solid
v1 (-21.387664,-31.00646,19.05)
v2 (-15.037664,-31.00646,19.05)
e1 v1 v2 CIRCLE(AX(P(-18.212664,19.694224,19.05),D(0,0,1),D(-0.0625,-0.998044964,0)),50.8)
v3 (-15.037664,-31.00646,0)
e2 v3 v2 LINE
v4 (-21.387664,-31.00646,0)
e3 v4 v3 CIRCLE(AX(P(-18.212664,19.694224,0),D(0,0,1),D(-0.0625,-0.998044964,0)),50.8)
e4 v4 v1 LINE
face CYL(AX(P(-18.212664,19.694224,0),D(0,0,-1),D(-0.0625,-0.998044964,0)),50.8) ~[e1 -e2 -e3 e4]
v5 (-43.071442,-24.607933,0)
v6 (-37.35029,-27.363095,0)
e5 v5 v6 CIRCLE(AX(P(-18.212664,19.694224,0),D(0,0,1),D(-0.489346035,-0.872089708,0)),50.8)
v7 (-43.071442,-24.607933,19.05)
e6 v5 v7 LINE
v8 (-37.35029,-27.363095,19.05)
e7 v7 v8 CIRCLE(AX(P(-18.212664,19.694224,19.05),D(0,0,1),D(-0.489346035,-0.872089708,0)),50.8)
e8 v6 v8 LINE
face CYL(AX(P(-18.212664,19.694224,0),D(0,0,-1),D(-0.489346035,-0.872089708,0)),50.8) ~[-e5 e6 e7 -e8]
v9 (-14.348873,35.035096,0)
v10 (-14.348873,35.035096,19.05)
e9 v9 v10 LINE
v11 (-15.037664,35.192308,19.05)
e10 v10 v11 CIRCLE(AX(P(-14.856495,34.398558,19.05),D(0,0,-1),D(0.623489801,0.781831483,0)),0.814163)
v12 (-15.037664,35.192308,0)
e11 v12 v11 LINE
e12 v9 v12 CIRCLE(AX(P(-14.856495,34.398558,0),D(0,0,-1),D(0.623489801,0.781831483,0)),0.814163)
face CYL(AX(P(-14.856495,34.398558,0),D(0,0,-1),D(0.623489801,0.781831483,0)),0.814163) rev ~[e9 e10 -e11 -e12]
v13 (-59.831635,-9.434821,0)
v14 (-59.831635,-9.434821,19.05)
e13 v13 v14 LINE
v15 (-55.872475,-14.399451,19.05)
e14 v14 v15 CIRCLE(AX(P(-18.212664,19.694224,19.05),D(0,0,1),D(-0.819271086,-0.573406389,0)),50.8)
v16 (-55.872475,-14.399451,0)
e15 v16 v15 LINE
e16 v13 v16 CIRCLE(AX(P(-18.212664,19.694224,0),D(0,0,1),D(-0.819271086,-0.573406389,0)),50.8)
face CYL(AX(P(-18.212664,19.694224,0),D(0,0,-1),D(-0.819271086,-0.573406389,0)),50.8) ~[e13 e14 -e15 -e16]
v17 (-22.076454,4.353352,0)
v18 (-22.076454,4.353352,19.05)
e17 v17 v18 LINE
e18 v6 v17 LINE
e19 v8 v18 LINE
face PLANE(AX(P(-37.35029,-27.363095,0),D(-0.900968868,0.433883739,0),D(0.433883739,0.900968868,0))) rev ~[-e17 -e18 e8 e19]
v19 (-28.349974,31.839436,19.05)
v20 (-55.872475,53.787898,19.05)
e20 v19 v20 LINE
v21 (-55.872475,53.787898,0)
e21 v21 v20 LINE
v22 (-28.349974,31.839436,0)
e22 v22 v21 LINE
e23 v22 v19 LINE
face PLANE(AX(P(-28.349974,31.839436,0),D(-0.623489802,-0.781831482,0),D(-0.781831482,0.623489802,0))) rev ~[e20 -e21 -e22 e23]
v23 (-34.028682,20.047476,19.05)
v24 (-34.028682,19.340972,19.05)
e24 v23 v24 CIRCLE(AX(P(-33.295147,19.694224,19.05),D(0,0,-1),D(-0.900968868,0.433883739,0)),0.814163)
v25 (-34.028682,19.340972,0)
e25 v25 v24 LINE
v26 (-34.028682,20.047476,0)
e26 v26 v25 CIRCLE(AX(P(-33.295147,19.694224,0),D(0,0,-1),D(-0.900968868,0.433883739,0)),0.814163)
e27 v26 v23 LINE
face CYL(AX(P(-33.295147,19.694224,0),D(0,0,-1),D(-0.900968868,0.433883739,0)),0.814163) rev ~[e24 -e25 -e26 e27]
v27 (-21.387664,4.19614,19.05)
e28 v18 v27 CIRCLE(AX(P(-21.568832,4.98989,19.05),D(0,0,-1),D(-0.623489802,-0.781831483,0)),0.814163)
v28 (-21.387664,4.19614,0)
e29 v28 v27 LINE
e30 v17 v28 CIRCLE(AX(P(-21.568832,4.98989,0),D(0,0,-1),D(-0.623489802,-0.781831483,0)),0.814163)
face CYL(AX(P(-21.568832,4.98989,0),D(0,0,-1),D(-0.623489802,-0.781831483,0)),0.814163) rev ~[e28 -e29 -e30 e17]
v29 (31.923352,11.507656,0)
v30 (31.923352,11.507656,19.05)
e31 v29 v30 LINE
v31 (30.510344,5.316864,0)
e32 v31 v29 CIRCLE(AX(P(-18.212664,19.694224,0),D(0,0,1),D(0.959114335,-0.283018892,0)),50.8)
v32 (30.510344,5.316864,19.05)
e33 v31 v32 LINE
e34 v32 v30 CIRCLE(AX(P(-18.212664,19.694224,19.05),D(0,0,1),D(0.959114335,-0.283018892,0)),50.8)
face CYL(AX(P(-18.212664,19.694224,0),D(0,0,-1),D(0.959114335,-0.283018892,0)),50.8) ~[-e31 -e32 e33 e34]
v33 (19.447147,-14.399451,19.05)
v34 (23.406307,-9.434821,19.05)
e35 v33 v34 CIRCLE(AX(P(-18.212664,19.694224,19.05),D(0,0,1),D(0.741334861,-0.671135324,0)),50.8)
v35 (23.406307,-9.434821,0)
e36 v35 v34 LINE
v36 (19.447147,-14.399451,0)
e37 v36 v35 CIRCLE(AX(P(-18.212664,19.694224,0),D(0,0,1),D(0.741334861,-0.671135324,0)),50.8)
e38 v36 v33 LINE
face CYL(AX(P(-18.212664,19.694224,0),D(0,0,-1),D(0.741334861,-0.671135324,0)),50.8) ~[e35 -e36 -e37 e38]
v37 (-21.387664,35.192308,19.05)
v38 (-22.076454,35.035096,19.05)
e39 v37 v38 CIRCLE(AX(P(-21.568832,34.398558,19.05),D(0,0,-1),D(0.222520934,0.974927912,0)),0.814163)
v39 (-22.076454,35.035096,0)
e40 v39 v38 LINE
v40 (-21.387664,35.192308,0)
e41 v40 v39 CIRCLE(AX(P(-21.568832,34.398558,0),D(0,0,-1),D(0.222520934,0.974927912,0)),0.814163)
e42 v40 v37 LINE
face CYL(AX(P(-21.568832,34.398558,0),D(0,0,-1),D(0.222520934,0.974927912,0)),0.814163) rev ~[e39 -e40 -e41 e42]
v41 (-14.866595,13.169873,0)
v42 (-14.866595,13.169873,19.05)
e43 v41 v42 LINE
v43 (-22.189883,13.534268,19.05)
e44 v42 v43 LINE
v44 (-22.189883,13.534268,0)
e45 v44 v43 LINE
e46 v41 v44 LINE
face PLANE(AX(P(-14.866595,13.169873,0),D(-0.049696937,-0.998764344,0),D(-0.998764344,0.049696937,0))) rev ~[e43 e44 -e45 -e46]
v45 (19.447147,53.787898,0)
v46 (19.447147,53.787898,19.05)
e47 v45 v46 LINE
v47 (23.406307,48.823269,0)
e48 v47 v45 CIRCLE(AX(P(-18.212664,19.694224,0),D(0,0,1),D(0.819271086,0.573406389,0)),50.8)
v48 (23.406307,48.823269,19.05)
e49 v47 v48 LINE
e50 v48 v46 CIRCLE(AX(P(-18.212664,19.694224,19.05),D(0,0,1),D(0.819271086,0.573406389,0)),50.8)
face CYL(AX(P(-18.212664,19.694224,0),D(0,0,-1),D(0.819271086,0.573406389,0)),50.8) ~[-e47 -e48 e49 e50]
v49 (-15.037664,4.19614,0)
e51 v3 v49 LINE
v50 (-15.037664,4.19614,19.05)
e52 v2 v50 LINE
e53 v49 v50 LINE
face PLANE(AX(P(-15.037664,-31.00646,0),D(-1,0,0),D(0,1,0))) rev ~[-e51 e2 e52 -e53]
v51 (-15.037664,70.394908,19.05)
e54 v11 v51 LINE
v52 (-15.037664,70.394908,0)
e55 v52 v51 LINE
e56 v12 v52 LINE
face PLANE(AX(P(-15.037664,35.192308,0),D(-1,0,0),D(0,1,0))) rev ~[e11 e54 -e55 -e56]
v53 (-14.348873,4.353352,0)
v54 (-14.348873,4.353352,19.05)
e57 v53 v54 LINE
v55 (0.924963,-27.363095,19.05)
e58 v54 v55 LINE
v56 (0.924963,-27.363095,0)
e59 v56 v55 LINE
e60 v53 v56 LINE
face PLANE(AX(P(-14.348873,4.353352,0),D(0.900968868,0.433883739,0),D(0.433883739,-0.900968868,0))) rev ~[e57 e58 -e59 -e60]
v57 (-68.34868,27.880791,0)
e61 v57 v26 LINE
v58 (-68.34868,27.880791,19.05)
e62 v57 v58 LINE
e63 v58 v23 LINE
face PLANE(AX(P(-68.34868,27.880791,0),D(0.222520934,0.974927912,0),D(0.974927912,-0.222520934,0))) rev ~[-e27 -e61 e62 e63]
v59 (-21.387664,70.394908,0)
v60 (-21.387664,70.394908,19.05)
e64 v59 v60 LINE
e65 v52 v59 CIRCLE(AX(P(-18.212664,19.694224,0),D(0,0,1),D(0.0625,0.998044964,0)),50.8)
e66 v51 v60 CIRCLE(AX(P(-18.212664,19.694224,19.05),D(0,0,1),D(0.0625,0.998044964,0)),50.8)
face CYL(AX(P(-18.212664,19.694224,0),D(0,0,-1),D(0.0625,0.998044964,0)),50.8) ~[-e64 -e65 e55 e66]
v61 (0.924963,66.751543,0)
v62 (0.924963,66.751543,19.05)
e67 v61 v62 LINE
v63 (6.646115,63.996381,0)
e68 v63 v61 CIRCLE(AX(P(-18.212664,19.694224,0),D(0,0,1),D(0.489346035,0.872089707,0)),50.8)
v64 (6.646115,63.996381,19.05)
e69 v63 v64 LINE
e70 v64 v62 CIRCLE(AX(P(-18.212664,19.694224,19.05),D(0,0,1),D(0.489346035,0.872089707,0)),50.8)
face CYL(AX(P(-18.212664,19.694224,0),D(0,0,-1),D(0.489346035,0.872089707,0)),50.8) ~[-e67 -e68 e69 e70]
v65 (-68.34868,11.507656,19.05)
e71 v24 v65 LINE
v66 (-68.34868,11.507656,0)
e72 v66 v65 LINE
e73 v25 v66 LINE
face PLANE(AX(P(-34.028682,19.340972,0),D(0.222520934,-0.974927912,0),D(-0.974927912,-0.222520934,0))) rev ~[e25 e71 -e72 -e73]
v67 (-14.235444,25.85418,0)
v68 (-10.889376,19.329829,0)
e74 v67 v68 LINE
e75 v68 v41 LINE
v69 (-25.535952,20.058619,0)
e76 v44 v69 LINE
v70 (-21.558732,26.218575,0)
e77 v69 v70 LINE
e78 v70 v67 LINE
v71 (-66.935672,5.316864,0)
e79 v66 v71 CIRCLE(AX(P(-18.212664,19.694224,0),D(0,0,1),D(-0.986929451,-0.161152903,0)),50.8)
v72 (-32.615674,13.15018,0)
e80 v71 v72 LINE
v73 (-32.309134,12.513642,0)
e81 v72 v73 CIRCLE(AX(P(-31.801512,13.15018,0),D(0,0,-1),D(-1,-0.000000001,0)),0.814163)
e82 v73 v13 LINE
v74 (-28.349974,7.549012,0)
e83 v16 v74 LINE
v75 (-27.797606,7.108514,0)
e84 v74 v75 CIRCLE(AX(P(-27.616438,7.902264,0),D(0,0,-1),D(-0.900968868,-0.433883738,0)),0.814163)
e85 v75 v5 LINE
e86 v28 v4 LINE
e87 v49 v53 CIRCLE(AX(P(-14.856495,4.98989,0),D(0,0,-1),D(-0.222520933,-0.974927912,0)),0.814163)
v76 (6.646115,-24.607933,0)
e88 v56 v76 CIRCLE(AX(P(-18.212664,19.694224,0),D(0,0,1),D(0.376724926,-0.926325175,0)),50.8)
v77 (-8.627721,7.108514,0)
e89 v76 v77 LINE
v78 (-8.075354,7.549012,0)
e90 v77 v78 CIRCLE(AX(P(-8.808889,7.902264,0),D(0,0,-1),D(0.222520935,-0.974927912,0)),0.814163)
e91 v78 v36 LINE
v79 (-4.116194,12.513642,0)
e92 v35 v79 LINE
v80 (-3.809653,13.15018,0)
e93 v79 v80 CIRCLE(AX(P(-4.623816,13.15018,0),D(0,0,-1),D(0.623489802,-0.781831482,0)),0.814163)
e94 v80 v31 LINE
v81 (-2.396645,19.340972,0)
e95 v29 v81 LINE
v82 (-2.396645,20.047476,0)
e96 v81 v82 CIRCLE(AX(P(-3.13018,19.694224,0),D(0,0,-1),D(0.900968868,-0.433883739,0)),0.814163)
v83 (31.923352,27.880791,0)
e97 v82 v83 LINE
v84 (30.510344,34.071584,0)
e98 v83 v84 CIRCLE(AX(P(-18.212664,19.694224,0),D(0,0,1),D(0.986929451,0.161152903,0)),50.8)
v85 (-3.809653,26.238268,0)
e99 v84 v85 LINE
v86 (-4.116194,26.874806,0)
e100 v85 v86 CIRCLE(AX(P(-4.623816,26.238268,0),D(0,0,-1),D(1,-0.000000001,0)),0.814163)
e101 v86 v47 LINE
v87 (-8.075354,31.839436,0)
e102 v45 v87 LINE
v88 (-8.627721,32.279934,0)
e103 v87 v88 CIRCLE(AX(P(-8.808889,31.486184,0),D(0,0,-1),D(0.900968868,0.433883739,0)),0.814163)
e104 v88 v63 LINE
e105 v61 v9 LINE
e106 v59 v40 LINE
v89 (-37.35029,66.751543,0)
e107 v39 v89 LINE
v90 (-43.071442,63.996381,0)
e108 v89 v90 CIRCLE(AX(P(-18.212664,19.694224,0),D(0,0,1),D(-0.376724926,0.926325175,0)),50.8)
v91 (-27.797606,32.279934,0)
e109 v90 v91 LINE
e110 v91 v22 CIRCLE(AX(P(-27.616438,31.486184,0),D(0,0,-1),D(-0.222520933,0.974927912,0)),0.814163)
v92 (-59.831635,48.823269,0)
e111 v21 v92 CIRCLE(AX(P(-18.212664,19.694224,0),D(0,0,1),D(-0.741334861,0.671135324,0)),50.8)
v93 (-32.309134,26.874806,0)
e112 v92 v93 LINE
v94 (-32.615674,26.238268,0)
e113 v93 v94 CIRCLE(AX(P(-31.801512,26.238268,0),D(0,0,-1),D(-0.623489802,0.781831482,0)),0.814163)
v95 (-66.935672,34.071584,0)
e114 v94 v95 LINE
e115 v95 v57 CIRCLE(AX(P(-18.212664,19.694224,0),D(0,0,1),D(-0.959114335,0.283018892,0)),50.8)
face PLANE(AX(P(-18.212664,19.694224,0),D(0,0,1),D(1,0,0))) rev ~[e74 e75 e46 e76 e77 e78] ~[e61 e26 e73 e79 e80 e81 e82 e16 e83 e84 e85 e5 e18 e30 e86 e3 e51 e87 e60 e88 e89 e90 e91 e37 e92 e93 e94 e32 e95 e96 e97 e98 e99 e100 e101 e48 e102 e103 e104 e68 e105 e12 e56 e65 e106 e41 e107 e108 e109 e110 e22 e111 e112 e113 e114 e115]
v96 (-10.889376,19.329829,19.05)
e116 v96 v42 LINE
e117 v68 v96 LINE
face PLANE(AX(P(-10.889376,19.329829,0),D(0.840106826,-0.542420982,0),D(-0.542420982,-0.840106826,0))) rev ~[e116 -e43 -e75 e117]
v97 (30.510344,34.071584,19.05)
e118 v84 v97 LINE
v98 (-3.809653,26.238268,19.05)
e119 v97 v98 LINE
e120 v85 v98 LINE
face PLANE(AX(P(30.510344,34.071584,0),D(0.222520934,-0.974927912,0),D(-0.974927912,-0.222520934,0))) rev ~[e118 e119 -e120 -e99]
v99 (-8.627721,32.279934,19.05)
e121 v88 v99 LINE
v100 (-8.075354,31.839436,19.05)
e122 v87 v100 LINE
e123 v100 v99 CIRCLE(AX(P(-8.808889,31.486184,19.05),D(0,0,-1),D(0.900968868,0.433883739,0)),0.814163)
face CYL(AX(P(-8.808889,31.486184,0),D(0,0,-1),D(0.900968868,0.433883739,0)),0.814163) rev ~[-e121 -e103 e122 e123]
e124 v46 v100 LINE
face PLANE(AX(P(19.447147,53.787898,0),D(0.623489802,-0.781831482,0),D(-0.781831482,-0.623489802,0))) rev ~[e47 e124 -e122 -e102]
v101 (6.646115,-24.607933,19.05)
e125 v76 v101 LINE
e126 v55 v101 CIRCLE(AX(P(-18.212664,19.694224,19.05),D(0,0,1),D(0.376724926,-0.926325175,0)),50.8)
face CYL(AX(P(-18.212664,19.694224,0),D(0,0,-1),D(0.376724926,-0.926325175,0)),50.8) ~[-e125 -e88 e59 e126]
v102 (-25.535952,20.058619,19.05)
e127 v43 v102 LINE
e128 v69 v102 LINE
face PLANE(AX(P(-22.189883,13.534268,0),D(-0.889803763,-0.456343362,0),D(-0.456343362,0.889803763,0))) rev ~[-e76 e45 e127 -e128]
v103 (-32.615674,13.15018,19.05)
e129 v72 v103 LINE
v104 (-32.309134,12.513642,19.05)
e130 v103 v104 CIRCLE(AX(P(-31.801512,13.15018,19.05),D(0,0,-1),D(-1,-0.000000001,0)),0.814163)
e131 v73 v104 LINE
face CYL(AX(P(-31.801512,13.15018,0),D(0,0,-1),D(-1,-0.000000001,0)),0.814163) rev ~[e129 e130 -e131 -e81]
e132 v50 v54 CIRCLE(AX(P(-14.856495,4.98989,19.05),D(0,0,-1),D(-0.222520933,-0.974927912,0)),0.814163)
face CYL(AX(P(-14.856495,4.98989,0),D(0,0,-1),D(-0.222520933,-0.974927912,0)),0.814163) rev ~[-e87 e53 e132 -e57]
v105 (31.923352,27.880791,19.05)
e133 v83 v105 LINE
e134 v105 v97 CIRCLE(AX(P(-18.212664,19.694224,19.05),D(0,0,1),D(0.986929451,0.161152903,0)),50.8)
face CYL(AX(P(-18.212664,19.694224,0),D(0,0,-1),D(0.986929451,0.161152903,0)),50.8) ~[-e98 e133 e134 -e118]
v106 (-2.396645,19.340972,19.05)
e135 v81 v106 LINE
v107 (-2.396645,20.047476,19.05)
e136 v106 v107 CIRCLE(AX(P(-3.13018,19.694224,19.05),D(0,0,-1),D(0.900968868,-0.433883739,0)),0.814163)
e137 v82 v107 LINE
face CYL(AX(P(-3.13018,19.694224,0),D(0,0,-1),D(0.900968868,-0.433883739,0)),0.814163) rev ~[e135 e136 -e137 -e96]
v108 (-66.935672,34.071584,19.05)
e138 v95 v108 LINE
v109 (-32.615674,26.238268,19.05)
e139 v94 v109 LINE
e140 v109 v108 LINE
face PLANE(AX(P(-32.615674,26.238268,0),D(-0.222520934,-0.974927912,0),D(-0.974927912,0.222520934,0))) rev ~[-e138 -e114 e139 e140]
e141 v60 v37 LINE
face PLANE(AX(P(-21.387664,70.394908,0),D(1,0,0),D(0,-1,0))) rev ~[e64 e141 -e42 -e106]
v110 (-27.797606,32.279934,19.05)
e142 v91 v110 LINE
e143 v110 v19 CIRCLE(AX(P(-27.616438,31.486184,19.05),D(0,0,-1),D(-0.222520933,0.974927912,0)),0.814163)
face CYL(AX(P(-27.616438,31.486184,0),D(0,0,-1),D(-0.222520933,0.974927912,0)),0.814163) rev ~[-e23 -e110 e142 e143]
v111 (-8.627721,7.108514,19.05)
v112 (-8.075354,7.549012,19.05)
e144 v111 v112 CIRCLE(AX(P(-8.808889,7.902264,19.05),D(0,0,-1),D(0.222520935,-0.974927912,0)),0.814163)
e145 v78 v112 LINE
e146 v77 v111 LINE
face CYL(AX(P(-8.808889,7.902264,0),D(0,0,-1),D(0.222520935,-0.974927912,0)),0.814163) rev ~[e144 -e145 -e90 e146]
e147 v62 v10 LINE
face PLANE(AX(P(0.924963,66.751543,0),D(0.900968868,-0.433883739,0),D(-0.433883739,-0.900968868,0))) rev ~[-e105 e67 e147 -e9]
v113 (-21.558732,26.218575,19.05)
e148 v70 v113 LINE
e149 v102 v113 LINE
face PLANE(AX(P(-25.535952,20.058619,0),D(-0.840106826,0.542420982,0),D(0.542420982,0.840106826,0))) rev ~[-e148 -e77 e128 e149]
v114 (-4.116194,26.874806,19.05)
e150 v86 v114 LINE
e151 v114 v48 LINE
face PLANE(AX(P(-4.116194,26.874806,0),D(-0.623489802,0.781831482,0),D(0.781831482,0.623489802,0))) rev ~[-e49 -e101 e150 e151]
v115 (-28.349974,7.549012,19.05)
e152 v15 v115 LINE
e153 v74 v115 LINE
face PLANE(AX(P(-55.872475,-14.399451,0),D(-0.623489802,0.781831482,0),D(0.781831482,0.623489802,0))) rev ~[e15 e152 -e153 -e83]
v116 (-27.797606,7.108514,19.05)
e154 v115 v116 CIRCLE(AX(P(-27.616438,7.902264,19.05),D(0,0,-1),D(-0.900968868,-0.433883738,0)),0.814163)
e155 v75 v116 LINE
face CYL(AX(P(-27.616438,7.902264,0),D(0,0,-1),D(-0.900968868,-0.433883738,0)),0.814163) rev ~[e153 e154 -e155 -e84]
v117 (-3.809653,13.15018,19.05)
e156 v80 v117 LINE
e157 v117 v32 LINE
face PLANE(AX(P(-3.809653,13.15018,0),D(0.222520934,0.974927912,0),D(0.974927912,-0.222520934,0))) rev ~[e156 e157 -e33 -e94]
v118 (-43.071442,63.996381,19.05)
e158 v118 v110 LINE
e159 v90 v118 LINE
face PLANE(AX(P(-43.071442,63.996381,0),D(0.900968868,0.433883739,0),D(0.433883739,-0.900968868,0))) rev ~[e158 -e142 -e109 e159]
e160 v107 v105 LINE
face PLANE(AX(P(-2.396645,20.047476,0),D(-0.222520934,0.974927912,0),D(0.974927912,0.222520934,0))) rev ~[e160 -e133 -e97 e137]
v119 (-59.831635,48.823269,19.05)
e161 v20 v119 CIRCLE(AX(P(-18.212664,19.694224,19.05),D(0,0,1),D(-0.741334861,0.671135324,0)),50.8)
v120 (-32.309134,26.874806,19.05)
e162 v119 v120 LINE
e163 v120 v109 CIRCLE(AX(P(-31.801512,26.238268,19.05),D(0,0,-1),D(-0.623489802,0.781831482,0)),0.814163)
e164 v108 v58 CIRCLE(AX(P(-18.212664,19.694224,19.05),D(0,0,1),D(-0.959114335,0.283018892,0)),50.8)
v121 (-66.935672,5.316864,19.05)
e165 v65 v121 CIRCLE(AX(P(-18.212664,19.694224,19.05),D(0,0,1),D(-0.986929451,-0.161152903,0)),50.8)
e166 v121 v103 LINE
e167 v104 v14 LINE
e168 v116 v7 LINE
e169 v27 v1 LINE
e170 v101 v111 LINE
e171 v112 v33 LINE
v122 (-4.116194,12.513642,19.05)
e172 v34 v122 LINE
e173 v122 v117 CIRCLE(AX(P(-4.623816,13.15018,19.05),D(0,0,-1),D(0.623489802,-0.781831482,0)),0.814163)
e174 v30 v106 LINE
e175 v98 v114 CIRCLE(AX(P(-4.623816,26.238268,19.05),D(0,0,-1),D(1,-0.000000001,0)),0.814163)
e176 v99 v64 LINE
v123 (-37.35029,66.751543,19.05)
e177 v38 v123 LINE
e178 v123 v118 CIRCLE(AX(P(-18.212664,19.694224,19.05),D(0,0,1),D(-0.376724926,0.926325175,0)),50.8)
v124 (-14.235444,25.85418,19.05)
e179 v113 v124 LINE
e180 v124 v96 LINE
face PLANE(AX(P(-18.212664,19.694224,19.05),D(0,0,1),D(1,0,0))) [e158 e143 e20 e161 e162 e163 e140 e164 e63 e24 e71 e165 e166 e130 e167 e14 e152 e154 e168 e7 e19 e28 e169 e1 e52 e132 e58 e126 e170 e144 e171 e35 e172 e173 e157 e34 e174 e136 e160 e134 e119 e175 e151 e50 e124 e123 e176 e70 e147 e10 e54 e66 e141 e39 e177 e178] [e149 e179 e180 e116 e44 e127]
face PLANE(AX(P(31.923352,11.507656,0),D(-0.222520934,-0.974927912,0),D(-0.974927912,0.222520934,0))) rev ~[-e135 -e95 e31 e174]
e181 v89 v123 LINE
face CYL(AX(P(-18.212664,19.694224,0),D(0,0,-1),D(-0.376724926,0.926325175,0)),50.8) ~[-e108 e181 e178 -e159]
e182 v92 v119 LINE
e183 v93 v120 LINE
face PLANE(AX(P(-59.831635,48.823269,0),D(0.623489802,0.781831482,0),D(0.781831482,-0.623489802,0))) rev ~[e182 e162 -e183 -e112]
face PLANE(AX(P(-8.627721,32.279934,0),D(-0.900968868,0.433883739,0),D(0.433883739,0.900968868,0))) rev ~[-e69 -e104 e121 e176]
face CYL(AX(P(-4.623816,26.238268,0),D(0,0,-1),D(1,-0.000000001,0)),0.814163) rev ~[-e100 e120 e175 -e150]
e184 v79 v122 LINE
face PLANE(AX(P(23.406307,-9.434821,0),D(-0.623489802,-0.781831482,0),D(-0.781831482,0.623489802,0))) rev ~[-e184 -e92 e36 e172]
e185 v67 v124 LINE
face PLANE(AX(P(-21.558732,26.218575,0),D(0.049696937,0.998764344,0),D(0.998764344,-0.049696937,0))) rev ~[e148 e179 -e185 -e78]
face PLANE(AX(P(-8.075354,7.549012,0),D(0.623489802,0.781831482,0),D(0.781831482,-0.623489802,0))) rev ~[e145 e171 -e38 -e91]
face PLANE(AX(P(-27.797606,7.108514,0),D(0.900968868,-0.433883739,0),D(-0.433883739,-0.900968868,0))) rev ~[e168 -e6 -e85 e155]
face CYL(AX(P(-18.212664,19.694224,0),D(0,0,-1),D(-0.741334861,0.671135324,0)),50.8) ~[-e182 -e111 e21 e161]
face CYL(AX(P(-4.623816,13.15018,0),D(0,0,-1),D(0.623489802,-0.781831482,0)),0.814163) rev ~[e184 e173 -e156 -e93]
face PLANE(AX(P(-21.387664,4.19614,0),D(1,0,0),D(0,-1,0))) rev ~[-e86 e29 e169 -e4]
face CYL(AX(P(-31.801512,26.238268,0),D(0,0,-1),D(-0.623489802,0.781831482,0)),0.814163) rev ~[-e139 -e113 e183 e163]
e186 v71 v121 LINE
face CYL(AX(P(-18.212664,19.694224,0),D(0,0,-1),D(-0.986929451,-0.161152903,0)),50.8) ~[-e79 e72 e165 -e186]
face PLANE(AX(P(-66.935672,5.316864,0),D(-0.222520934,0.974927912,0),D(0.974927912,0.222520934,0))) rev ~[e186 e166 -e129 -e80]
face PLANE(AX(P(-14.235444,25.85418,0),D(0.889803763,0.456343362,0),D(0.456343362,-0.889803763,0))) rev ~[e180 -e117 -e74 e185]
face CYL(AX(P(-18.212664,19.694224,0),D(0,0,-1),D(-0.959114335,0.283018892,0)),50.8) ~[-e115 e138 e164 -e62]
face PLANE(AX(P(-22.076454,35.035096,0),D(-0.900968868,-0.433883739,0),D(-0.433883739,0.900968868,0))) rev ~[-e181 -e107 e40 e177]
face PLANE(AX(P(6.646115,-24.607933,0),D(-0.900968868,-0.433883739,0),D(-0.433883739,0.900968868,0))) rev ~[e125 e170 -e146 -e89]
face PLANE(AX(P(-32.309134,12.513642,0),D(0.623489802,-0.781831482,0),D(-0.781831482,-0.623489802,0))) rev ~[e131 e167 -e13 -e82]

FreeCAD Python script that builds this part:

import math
import FreeCAD as App
import Part
import Sketcher
Q = App.Units.Quantity

doc = App.newDocument("Part")
body = doc.addObject("PartDesign::Body", "Body")

# Sketch on XY plane
sketch1 = body.newObject("Sketcher::SketchObject", "Sketch")
sketch1.AttachmentSupport = (doc.getObject("XY_Plane"), [""])
sketch1.MapMode = "FlatFace"
sketch1.addGeometry(Part.LineSegment(App.Vector(-68.34868, 27.880791, 0), App.Vector(-34.028682, 20.047476, 0)), False)
sketch1.addGeometry(Part.ArcOfCircle(Part.Circle(App.Vector(-33.295147, 19.694224, 0), App.Vector(0, 0, 1), 0.814163), math.radians(-154.285714), math.radians(154.285714)), False)
sketch1.addGeometry(Part.LineSegment(App.Vector(-34.028682, 19.340972, 0), App.Vector(-68.34868, 11.507656, 0)), False)
sketch1.addGeometry(Part.ArcOfCircle(Part.Circle(App.Vector(-18.212664, 19.694224, 0), App.Vector(0, 0, 1), 50.8), math.radians(-170.726179), math.radians(-163.559535)), False)
sketch1.addGeometry(Part.LineSegment(App.Vector(-66.935672, 5.316864, 0), App.Vector(-32.615674, 13.15018, 0)), False)
sketch1.addGeometry(Part.ArcOfCircle(Part.Circle(App.Vector(-31.801512, 13.15018, 0), App.Vector(0, 0, 1), 0.814163), math.radians(-128.571429), math.radians(180)), False)
sketch1.addGeometry(Part.LineSegment(App.Vector(-32.309134, 12.513642, 0), App.Vector(-59.831635, -9.434821, 0)), False)
sketch1.addGeometry(Part.ArcOfCircle(Part.Circle(App.Vector(-18.212664, 19.694224, 0), App.Vector(0, 0, 1), 50.8), math.radians(-145.011893), math.radians(-137.84525)), False)
sketch1.addGeometry(Part.LineSegment(App.Vector(-55.872475, -14.399451, 0), App.Vector(-28.349974, 7.549012, 0)), False)
sketch1.addGeometry(Part.ArcOfCircle(Part.Circle(App.Vector(-27.616438, 7.902264, 0), App.Vector(0, 0, 1), 0.814163), math.radians(-102.857143), math.radians(205.714286)), False)
sketch1.addGeometry(Part.LineSegment(App.Vector(-27.797606, 7.108514, 0), App.Vector(-43.071442, -24.607933, 0)), False)
sketch1.addGeometry(Part.ArcOfCircle(Part.Circle(App.Vector(-18.212664, 19.694224, 0), App.Vector(0, 0, 1), 50.8), math.radians(-119.297607), math.radians(-112.130964)), False)
sketch1.addGeometry(Part.LineSegment(App.Vector(-37.35029, -27.363095, 0), App.Vector(-22.076454, 4.353352, 0)), False)
sketch1.addGeometry(Part.ArcOfCircle(Part.Circle(App.Vector(-21.568832, 4.98989, 0), App.Vector(0, 0, 1), 0.814163), math.radians(-77.142857), math.radians(231.428571)), False)
sketch1.addGeometry(Part.LineSegment(App.Vector(-21.387664, 4.19614, 0), App.Vector(-21.387664, -31.00646, 0)), False)
sketch1.addGeometry(Part.ArcOfCircle(Part.Circle(App.Vector(-18.212664, 19.694224, 0), App.Vector(0, 0, 1), 50.8), math.radians(-93.583322), math.radians(-86.416678)), False)
sketch1.addGeometry(Part.LineSegment(App.Vector(-15.037664, -31.00646, 0), App.Vector(-15.037664, 4.19614, 0)), False)
sketch1.addGeometry(Part.ArcOfCircle(Part.Circle(App.Vector(-14.856495, 4.98989, 0), App.Vector(0, 0, 1), 0.814163), math.radians(-51.428571), math.radians(257.142857)), False)
sketch1.addGeometry(Part.LineSegment(App.Vector(-14.348873, 4.353352, 0), App.Vector(0.924963, -27.363095, 0)), False)
sketch1.addGeometry(Part.ArcOfCircle(Part.Circle(App.Vector(-18.212664, 19.694224, 0), App.Vector(0, 0, 1), 50.8), math.radians(-67.869036), math.radians(-60.702393)), False)
sketch1.addGeometry(Part.LineSegment(App.Vector(6.646115, -24.607933, 0), App.Vector(-8.627721, 7.108514, 0)), False)
sketch1.addGeometry(Part.ArcOfCircle(Part.Circle(App.Vector(-8.808889, 7.902264, 0), App.Vector(0, 0, 1), 0.814163), math.radians(-25.714286), math.radians(282.857143)), False)
sketch1.addGeometry(Part.LineSegment(App.Vector(-8.075354, 7.549012, 0), App.Vector(19.447147, -14.399451, 0)), False)
sketch1.addGeometry(Part.ArcOfCircle(Part.Circle(App.Vector(-18.212664, 19.694224, 0), App.Vector(0, 0, 1), 50.8), math.radians(-42.15475), math.radians(-34.988107)), False)
sketch1.addGeometry(Part.LineSegment(App.Vector(23.406307, -9.434821, 0), App.Vector(-4.116194, 12.513642, 0)), False)
sketch1.addGeometry(Part.ArcOfCircle(Part.Circle(App.Vector(-4.623816, 13.15018, 0), App.Vector(0, 0, 1), 0.814163), math.radians(0), math.radians(308.571429)), False)
sketch1.addGeometry(Part.LineSegment(App.Vector(-3.809653, 13.15018, 0), App.Vector(30.510344, 5.316864, 0)), False)
sketch1.addGeometry(Part.ArcOfCircle(Part.Circle(App.Vector(-18.212664, 19.694224, 0), App.Vector(0, 0, 1), 50.8), math.radians(-16.440465), math.radians(-9.273821)), False)
sketch1.addGeometry(Part.LineSegment(App.Vector(31.923352, 11.507656, 0), App.Vector(-2.396645, 19.340972, 0)), False)
sketch1.addGeometry(Part.ArcOfCircle(Part.Circle(App.Vector(-3.13018, 19.694224, 0), App.Vector(0, 0, 1), 0.814163), math.radians(25.714286), math.radians(334.285714)), False)
sketch1.addGeometry(Part.LineSegment(App.Vector(-2.396645, 20.047476, 0), App.Vector(31.923352, 27.880791, 0)), False)
sketch1.addGeometry(Part.ArcOfCircle(Part.Circle(App.Vector(-18.212664, 19.694224, 0), App.Vector(0, 0, 1), 50.8), math.radians(9.273821), math.radians(16.440465)), False)
sketch1.addGeometry(Part.LineSegment(App.Vector(30.510344, 34.071584, 0), App.Vector(-3.809653, 26.238268, 0)), False)
sketch1.addGeometry(Part.ArcOfCircle(Part.Circle(App.Vector(-4.623816, 26.238268, 0), App.Vector(0, 0, 1), 0.814163), math.radians(51.428571), math.radians(360)), False)
sketch1.addGeometry(Part.LineSegment(App.Vector(-4.116194, 26.874806, 0), App.Vector(23.406307, 48.823269, 0)), False)
sketch1.addGeometry(Part.ArcOfCircle(Part.Circle(App.Vector(-18.212664, 19.694224, 0), App.Vector(0, 0, 1), 50.8), math.radians(34.988107), math.radians(42.15475)), False)
sketch1.addGeometry(Part.LineSegment(App.Vector(19.447147, 53.787898, 0), App.Vector(-8.075354, 31.839436, 0)), False)
sketch1.addGeometry(Part.ArcOfCircle(Part.Circle(App.Vector(-8.808889, 31.486184, 0), App.Vector(0, 0, 1), 0.814163), math.radians(77.142857), math.radians(385.714286)), False)
sketch1.addGeometry(Part.LineSegment(App.Vector(-8.627721, 32.279934, 0), App.Vector(6.646115, 63.996381, 0)), False)
sketch1.addGeometry(Part.ArcOfCircle(Part.Circle(App.Vector(-18.212664, 19.694224, 0), App.Vector(0, 0, 1), 50.8), math.radians(60.702393), math.radians(67.869036)), False)
sketch1.addGeometry(Part.LineSegment(App.Vector(0.924963, 66.751543, 0), App.Vector(-14.348873, 35.035096, 0)), False)
sketch1.addGeometry(Part.ArcOfCircle(Part.Circle(App.Vector(-14.856495, 34.398558, 0), App.Vector(0, 0, 1), 0.814163), math.radians(102.857143), math.radians(411.428571)), False)
sketch1.addGeometry(Part.LineSegment(App.Vector(-15.037664, 35.192308, 0), App.Vector(-15.037664, 70.394908, 0)), False)
sketch1.addGeometry(Part.ArcOfCircle(Part.Circle(App.Vector(-18.212664, 19.694224, 0), App.Vector(0, 0, 1), 50.8), math.radians(86.416678), math.radians(93.583322)), False)
sketch1.addGeometry(Part.LineSegment(App.Vector(-21.387664, 70.394908, 0), App.Vector(-21.387664, 35.192308, 0)), False)
sketch1.addGeometry(Part.ArcOfCircle(Part.Circle(App.Vector(-21.568832, 34.398558, 0), App.Vector(0, 0, 1), 0.814163), math.radians(128.571429), math.radians(437.142857)), False)
sketch1.addGeometry(Part.LineSegment(App.Vector(-22.076454, 35.035096, 0), App.Vector(-37.35029, 66.751543, 0)), False)
sketch1.addGeometry(Part.ArcOfCircle(Part.Circle(App.Vector(-18.212664, 19.694224, 0), App.Vector(0, 0, 1), 50.8), math.radians(112.130964), math.radians(119.297607)), False)
sketch1.addGeometry(Part.LineSegment(App.Vector(-43.071442, 63.996381, 0), App.Vector(-27.797606, 32.279934, 0)), False)
sketch1.addGeometry(Part.ArcOfCircle(Part.Circle(App.Vector(-27.616438, 31.486184, 0), App.Vector(0, 0, 1), 0.814163), math.radians(154.285714), math.radians(462.857143)), False)
sketch1.addGeometry(Part.LineSegment(App.Vector(-28.349974, 31.839436, 0), App.Vector(-55.872475, 53.787898, 0)), False)
sketch1.addGeometry(Part.ArcOfCircle(Part.Circle(App.Vector(-18.212664, 19.694224, 0), App.Vector(0, 0, 1), 50.8), math.radians(137.84525), math.radians(145.011893)), False)
sketch1.addGeometry(Part.LineSegment(App.Vector(-59.831635, 48.823269, 0), App.Vector(-32.309134, 26.874806, 0)), False)
sketch1.addGeometry(Part.ArcOfCircle(Part.Circle(App.Vector(-31.801512, 26.238268, 0), App.Vector(0, 0, 1), 0.814163), math.radians(180), math.radians(488.571429)), False)
sketch1.addGeometry(Part.LineSegment(App.Vector(-32.615674, 26.238268, 0), App.Vector(-66.935672, 34.071584, 0)), False)
sketch1.addGeometry(Part.ArcOfCircle(Part.Circle(App.Vector(-18.212664, 19.694224, 0), App.Vector(0, 0, 1), 50.8), math.radians(163.559535), math.radians(170.726179)), False)
sketch1.addGeometry(Part.LineSegment(App.Vector(-14.235444, 25.85418, 0), App.Vector(-10.889376, 19.329829, 0)), False)
sketch1.addGeometry(Part.LineSegment(App.Vector(-10.889376, 19.329829, 0), App.Vector(-14.866595, 13.169873, 0)), False)
sketch1.addGeometry(Part.LineSegment(App.Vector(-14.866595, 13.169873, 0), App.Vector(-22.189883, 13.534268, 0)), False)
sketch1.addGeometry(Part.LineSegment(App.Vector(-22.189883, 13.534268, 0), App.Vector(-25.535952, 20.058619, 0)), False)
sketch1.addGeometry(Part.LineSegment(App.Vector(-25.535952, 20.058619, 0), App.Vector(-21.558732, 26.218575, 0)), False)
sketch1.addGeometry(Part.LineSegment(App.Vector(-21.558732, 26.218575, 0), App.Vector(-14.235444, 25.85418, 0)), False)
sketch1.addConstraint(Sketcher.Constraint("Coincident", 0, 2, 1, 2))
sketch1.addConstraint(Sketcher.Constraint("Coincident", 1, 1, 2, 1))
sketch1.addConstraint(Sketcher.Constraint("Coincident", 2, 2, 3, 1))
sketch1.addConstraint(Sketcher.Constraint("Coincident", 3, 2, 4, 1))
sketch1.addConstraint(Sketcher.Constraint("Coincident", 4, 2, 5, 2))
sketch1.addConstraint(Sketcher.Constraint("Coincident", 5, 1, 6, 1))
sketch1.addConstraint(Sketcher.Constraint("Coincident", 6, 2, 7, 1))
sketch1.addConstraint(Sketcher.Constraint("Coincident", 7, 2, 8, 1))
sketch1.addConstraint(Sketcher.Constraint("Coincident", 8, 2, 9, 2))
sketch1.addConstraint(Sketcher.Constraint("Coincident", 9, 1, 10, 1))
sketch1.addConstraint(Sketcher.Constraint("Coincident", 10, 2, 11, 1))
sketch1.addConstraint(Sketcher.Constraint("Coincident", 11, 2, 12, 1))
sketch1.addConstraint(Sketcher.Constraint("Coincident", 12, 2, 13, 2))
sketch1.addConstraint(Sketcher.Constraint("Coincident", 13, 1, 14, 1))
sketch1.addConstraint(Sketcher.Constraint("Coincident", 14, 2, 15, 1))
sketch1.addConstraint(Sketcher.Constraint("Coincident", 15, 2, 16, 1))
sketch1.addConstraint(Sketcher.Constraint("Coincident", 16, 2, 17, 2))
sketch1.addConstraint(Sketcher.Constraint("Coincident", 17, 1, 18, 1))
sketch1.addConstraint(Sketcher.Constraint("Coincident", 18, 2, 19, 1))
sketch1.addConstraint(Sketcher.Constraint("Coincident", 19, 2, 20, 1))
sketch1.addConstraint(Sketcher.Constraint("Coincident", 20, 2, 21, 2))
sketch1.addConstraint(Sketcher.Constraint("Coincident", 21, 1, 22, 1))
sketch1.addConstraint(Sketcher.Constraint("Coincident", 22, 2, 23, 1))
sketch1.addConstraint(Sketcher.Constraint("Coincident", 23, 2, 24, 1))
sketch1.addConstraint(Sketcher.Constraint("Coincident", 24, 2, 25, 2))
sketch1.addConstraint(Sketcher.Constraint("Coincident", 25, 1, 26, 1))
sketch1.addConstraint(Sketcher.Constraint("Coincident", 26, 2, 27, 1))
sketch1.addConstraint(Sketcher.Constraint("Coincident", 27, 2, 28, 1))
sketch1.addConstraint(Sketcher.Constraint("Coincident", 28, 2, 29, 2))
sketch1.addConstraint(Sketcher.Constraint("Coincident", 29, 1, 30, 1))
sketch1.addConstraint(Sketcher.Constraint("Coincident", 30, 2, 31, 1))
sketch1.addConstraint(Sketcher.Constraint("Coincident", 31, 2, 32, 1))
sketch1.addConstraint(Sketcher.Constraint("Coincident", 32, 2, 33, 2))
sketch1.addConstraint(Sketcher.Constraint("Coincident", 33, 1, 34, 1))
sketch1.addConstraint(Sketcher.Constraint("Coincident", 34, 2, 35, 1))
sketch1.addConstraint(Sketcher.Constraint("Coincident", 35, 2, 36, 1))
sketch1.addConstraint(Sketcher.Constraint("Coincident", 36, 2, 37, 2))
sketch1.addConstraint(Sketcher.Constraint("Coincident", 37, 1, 38, 1))
sketch1.addConstraint(Sketcher.Constraint("Coincident", 38, 2, 39, 1))
sketch1.addConstraint(Sketcher.Constraint("Coincident", 39, 2, 40, 1))
sketch1.addConstraint(Sketcher.Constraint("Coincident", 40, 2, 41, 2))
sketch1.addConstraint(Sketcher.Constraint("Coincident", 41, 1, 42, 1))
sketch1.addConstraint(Sketcher.Constraint("Coincident", 42, 2, 43, 1))
sketch1.addConstraint(Sketcher.Constraint("Coincident", 43, 2, 44, 1))
sketch1.addConstraint(Sketcher.Constraint("Coincident", 44, 2, 45, 2))
sketch1.addConstraint(Sketcher.Constraint("Coincident", 45, 1, 46, 1))
sketch1.addConstraint(Sketcher.Constraint("Coincident", 46, 2, 47, 1))
sketch1.addConstraint(Sketcher.Constraint("Coincident", 47, 2, 48, 1))
sketch1.addConstraint(Sketcher.Constraint("Coincident", 48, 2, 49, 2))
sketch1.addConstraint(Sketcher.Constraint("Coincident", 49, 1, 50, 1))
sketch1.addConstraint(Sketcher.Constraint("Coincident", 50, 2, 51, 1))
sketch1.addConstraint(Sketcher.Constraint("Coincident", 51, 2, 52, 1))
sketch1.addConstraint(Sketcher.Constraint("Coincident", 52, 2, 53, 2))
sketch1.addConstraint(Sketcher.Constraint("Coincident", 53, 1, 54, 1))
sketch1.addConstraint(Sketcher.Constraint("Coincident", 54, 2, 55, 1))
sketch1.addConstraint(Sketcher.Constraint("Coincident", 55, 2, 0, 1))
sketch1.addConstraint(Sketcher.Constraint("Coincident", 56, 2, 57, 1))
sketch1.addConstraint(Sketcher.Constraint("Coincident", 57, 2, 58, 1))
sketch1.addConstraint(Sketcher.Constraint("Coincident", 58, 2, 59, 1))
sketch1.addConstraint(Sketcher.Constraint("Coincident", 59, 2, 60, 1))
sketch1.addConstraint(Sketcher.Constraint("Coincident", 60, 2, 61, 1))
sketch1.addConstraint(Sketcher.Constraint("Coincident", 61, 2, 56, 1))
sketch1.addConstraint(Sketcher.Constraint("Vertical", 14))
sketch1.addConstraint(Sketcher.Constraint("Vertical", 16))
sketch1.addConstraint(Sketcher.Constraint("Vertical", 42))
sketch1.addConstraint(Sketcher.Constraint("Vertical", 44))
sketch1.addConstraint(Sketcher.Constraint("Coincident", 7, 3, 3, 3))
sketch1.addConstraint(Sketcher.Constraint("Coincident", 11, 3, 3, 3))
sketch1.addConstraint(Sketcher.Constraint("Coincident", 15, 3, 3, 3))
sketch1.addConstraint(Sketcher.Constraint("Coincident", 19, 3, 3, 3))
sketch1.addConstraint(Sketcher.Constraint("Coincident", 23, 3, 3, 3))
sketch1.addConstraint(Sketcher.Constraint("Coincident", 27, 3, 3, 3))
sketch1.addConstraint(Sketcher.Constraint("Coincident", 31, 3, 3, 3))
sketch1.addConstraint(Sketcher.Constraint("Coincident", 35, 3, 3, 3))
sketch1.addConstraint(Sketcher.Constraint("Coincident", 39, 3, 3, 3))
sketch1.addConstraint(Sketcher.Constraint("Coincident", 43, 3, 3, 3))
sketch1.addConstraint(Sketcher.Constraint("Coincident", 47, 3, 3, 3))
sketch1.addConstraint(Sketcher.Constraint("Coincident", 51, 3, 3, 3))
sketch1.addConstraint(Sketcher.Constraint("Coincident", 55, 3, 3, 3))
sketch1.addConstraint(Sketcher.Constraint("Equal", 1, 5))
sketch1.addConstraint(Sketcher.Constraint("Equal", 3, 7))
sketch1.addConstraint(Sketcher.Constraint("Equal", 5, 9))
sketch1.addConstraint(Sketcher.Constraint("Equal", 7, 11))
sketch1.addConstraint(Sketcher.Constraint("Equal", 9, 13))
sketch1.addConstraint(Sketcher.Constraint("Equal", 11, 15))
sketch1.addConstraint(Sketcher.Constraint("Equal", 13, 17))
sketch1.addConstraint(Sketcher.Constraint("Equal", 15, 19))
sketch1.addConstraint(Sketcher.Constraint("Equal", 17, 21))
sketch1.addConstraint(Sketcher.Constraint("Equal", 19, 23))
sketch1.addConstraint(Sketcher.Constraint("Equal", 21, 25))
sketch1.addConstraint(Sketcher.Constraint("Equal", 23, 27))
sketch1.addConstraint(Sketcher.Constraint("Equal", 25, 29))
sketch1.addConstraint(Sketcher.Constraint("Equal", 27, 31))
sketch1.addConstraint(Sketcher.Constraint("Equal", 29, 33))
sketch1.addConstraint(Sketcher.Constraint("Equal", 31, 35))
sketch1.addConstraint(Sketcher.Constraint("Equal", 33, 37))
sketch1.addConstraint(Sketcher.Constraint("Equal", 35, 39))
sketch1.addConstraint(Sketcher.Constraint("Equal", 37, 41))
sketch1.addConstraint(Sketcher.Constraint("Equal", 39, 43))
sketch1.addConstraint(Sketcher.Constraint("Equal", 41, 45))
sketch1.addConstraint(Sketcher.Constraint("Equal", 43, 47))
sketch1.addConstraint(Sketcher.Constraint("Equal", 45, 49))
sketch1.addConstraint(Sketcher.Constraint("Equal", 47, 51))
sketch1.addConstraint(Sketcher.Constraint("Equal", 49, 53))
sketch1.addConstraint(Sketcher.Constraint("Equal", 51, 55))
sketch1.addConstraint(Sketcher.Constraint("Parallel", 2, 4))
sketch1.addConstraint(Sketcher.Constraint("Parallel", 6, 8))
sketch1.addConstraint(Sketcher.Constraint("Parallel", 10, 12))
sketch1.addConstraint(Sketcher.Constraint("Parallel", 18, 20))
sketch1.addConstraint(Sketcher.Constraint("Parallel", 22, 24))
sketch1.addConstraint(Sketcher.Constraint("Parallel", 0, 26))
sketch1.addConstraint(Sketcher.Constraint("Parallel", 26, 28))
sketch1.addConstraint(Sketcher.Constraint("Parallel", 4, 30))
sketch1.addConstraint(Sketcher.Constraint("Parallel", 30, 32))
sketch1.addConstraint(Sketcher.Constraint("Parallel", 8, 34))
sketch1.addConstraint(Sketcher.Constraint("Parallel", 34, 36))
sketch1.addConstraint(Sketcher.Constraint("Parallel", 12, 38))
sketch1.addConstraint(Sketcher.Constraint("Parallel", 38, 40))
sketch1.addConstraint(Sketcher.Constraint("Parallel", 20, 46))
sketch1.addConstraint(Sketcher.Constraint("Parallel", 46, 48))
sketch1.addConstraint(Sketcher.Constraint("Parallel", 24, 50))
sketch1.addConstraint(Sketcher.Constraint("Parallel", 50, 52))
sketch1.addConstraint(Sketcher.Constraint("Parallel", 28, 54))
sketch1.addConstraint(Sketcher.Constraint("Parallel", 56, 59))
sketch1.addConstraint(Sketcher.Constraint("Parallel", 57, 60))
sketch1.addConstraint(Sketcher.Constraint("Parallel", 58, 61))
sketch1.addConstraint(Sketcher.Constraint("Horizontal", 1, 3, 3, 3))
sketch1.addConstraint(Sketcher.Constraint("Horizontal", 13, 3, 17, 3))
sketch1.addConstraint(Sketcher.Constraint("Horizontal", 9, 3, 21, 3))
sketch1.addConstraint(Sketcher.Constraint("Horizontal", 5, 3, 25, 3))
sketch1.addConstraint(Sketcher.Constraint("Horizontal", 27, 3, 29, 3))
sketch1.addConstraint(Sketcher.Constraint("Horizontal", 41, 3, 45, 3))
sketch1.addConstraint(Sketcher.Constraint("Horizontal", 37, 3, 49, 3))
sketch1.addConstraint(Sketcher.Constraint("Horizontal", 33, 3, 53, 3))
sketch1.addConstraint(Sketcher.Constraint("Horizontal", 25, 3, 4, 2))
sketch1.addConstraint(Sketcher.Constraint("Horizontal", 14, 2, 15, 2))
sketch1.addConstraint(Sketcher.Constraint("Horizontal", 13, 1, 16, 2))
sketch1.addConstraint(Sketcher.Constraint("Horizontal", 12, 2, 17, 1))
sketch1.addConstraint(Sketcher.Constraint("Horizontal", 11, 2, 18, 2))
sketch1.addConstraint(Sketcher.Constraint("Horizontal", 10, 2, 19, 2))
sketch1.addConstraint(Sketcher.Constraint("Horizontal", 9, 1, 20, 2))
sketch1.addConstraint(Sketcher.Constraint("Horizontal", 8, 2, 21, 1))
sketch1.addConstraint(Sketcher.Constraint("Horizontal", 7, 2, 22, 2))
sketch1.addConstraint(Sketcher.Constraint("Horizontal", 6, 2, 23, 2))
sketch1.addConstraint(Sketcher.Constraint("Horizontal", 5, 1, 24, 2))
sketch1.addConstraint(Sketcher.Constraint("Horizontal", 4, 2, 25, 1))
sketch1.addConstraint(Sketcher.Constraint("Horizontal", 3, 2, 26, 2))
sketch1.addConstraint(Sketcher.Constraint("Horizontal", 2, 2, 27, 2))
sketch1.addConstraint(Sketcher.Constraint("Horizontal", 1, 1, 28, 2))
sketch1.addConstraint(Sketcher.Constraint("Horizontal", 0, 2, 29, 1))
sketch1.addConstraint(Sketcher.Constraint("Horizontal", 53, 3, 32, 2))
sketch1.addConstraint(Sketcher.Constraint("Horizontal", 42, 2, 43, 2))
sketch1.addConstraint(Sketcher.Constraint("Horizontal", 41, 1, 44, 2))
sketch1.addConstraint(Sketcher.Constraint("Horizontal", 40, 2, 45, 1))
sketch1.addConstraint(Sketcher.Constraint("Horizontal", 38, 2, 47, 2))
sketch1.addConstraint(Sketcher.Constraint("Horizontal", 37, 1, 48, 2))
sketch1.addConstraint(Sketcher.Constraint("Horizontal", 36, 2, 49, 1))
sketch1.addConstraint(Sketcher.Constraint("Horizontal", 34, 2, 51, 2))
sketch1.addConstraint(Sketcher.Constraint("Horizontal", 33, 1, 52, 2))
sketch1.addConstraint(Sketcher.Constraint("Horizontal", 32, 2, 53, 1))
sketch1.addConstraint(Sketcher.Constraint("Vertical", 25, 3, 33, 3))
sketch1.addConstraint(Sketcher.Constraint("Vertical", 21, 3, 37, 3))
sketch1.addConstraint(Sketcher.Constraint("Vertical", 17, 3, 41, 3))
sketch1.addConstraint(Sketcher.Constraint("Vertical", 0, 2, 1, 1))
sketch1.addConstraint(Sketcher.Constraint("Vertical", 26, 2, 31, 2))
sketch1.addConstraint(Sketcher.Constraint("Vertical", 24, 2, 33, 1))
sketch1.addConstraint(Sketcher.Constraint("Vertical", 22, 2, 35, 2))
sketch1.addConstraint(Sketcher.Constraint("Vertical", 21, 1, 36, 2))
sketch1.addConstraint(Sketcher.Constraint("Vertical", 20, 2, 37, 1))
sketch1.addConstraint(Sketcher.Constraint("Vertical", 18, 2, 39, 2))
sketch1.addConstraint(Sketcher.Constraint("Vertical", 17, 1, 40, 2))
sketch1.addConstraint(Sketcher.Constraint("Vertical", 16, 2, 41, 1))
sketch1.addConstraint(Sketcher.Constraint("Equal", 2, 4))
sketch1.addConstraint(Sketcher.Constraint("Equal", 4, 6))
sketch1.addConstraint(Sketcher.Constraint("Equal", 6, 8))
sketch1.addConstraint(Sketcher.Constraint("Equal", 8, 10))
sketch1.addConstraint(Sketcher.Constraint("Equal", 10, 12))
sketch1.addConstraint(Sketcher.Constraint("Equal", 56, 57))
sketch1.addConstraint(Sketcher.Constraint("Equal", 57, 58))
sketch1.addConstraint(Sketcher.Constraint("Equal", 58, 59))
sketch1.addConstraint(Sketcher.Constraint("Radius", 3, Q("2 in")))
sketch1.addConstraint(Sketcher.Constraint("DistanceY", 14, 2, 14, 1, 35.2026))
sketch1.addConstraint(Sketcher.Constraint("Radius", 1, 0.814163))
sketch1.addConstraint(Sketcher.Constraint("Distance", 0, 35.2026))
sketch1.addConstraint(Sketcher.Constraint("DistanceY", -1, 1, 35, 2, 53.787898))
sketch1.addConstraint(Sketcher.Constraint("Distance", 56, 7.332348))
sketch1.addConstraint(Sketcher.Constraint("DistanceX", 5, 3, -1, 1, 31.801512))
sketch1.addConstraint(Sketcher.Constraint("DistanceY", -1, 1, 5, 3, 13.15018))
sketch1.addConstraint(Sketcher.Constraint("DistanceX", 9, 3, -1, 1, 27.616438))
sketch1.addConstraint(Sketcher.Constraint("DistanceX", 13, 3, -1, 1, 21.568832))
sketch1.addConstraint(Sketcher.Constraint("DistanceY", -1, 1, 13, 3, 4.98989))
sketch1.addConstraint(Sketcher.Constraint("DistanceX", 21, 3, -1, 1, 8.808889))
sketch1.addConstraint(Sketcher.Constraint("DistanceX", 29, 3, -1, 1, 3.13018))
sketch1.addConstraint(Sketcher.Constraint("DistanceY", -1, 1, 33, 3, 26.238268))
sketch1.addConstraint(Sketcher.Constraint("DistanceY", -1, 1, 5, 1, 12.513642))
sketch1.addConstraint(Sketcher.Constraint("DistanceX", 11, 2, -1, 1, 37.35029))
sketch1.addConstraint(Sketcher.Constraint("DistanceY", -1, 1, 56, 2, 19.329829))
sketch1.addConstraint(Sketcher.Constraint("DistanceX", 59, 2, -1, 1, 25.535952))
sketch1.addConstraint(Sketcher.Constraint("DistanceY", -1, 1, 59, 2, 20.058619))
sketch1.addConstraint(Sketcher.Constraint("DistanceY", -1, 1, 61, 2, 25.85418))
sketch1.addConstraint(Sketcher.Constraint("DistanceX", 56, 2, -1, 1, 10.889376))
pad1 = body.newObject("PartDesign::Pad", "Pad")
pad1.Profile = sketch1
pad1.Length = Q("0.75 in")

doc.recompute()
